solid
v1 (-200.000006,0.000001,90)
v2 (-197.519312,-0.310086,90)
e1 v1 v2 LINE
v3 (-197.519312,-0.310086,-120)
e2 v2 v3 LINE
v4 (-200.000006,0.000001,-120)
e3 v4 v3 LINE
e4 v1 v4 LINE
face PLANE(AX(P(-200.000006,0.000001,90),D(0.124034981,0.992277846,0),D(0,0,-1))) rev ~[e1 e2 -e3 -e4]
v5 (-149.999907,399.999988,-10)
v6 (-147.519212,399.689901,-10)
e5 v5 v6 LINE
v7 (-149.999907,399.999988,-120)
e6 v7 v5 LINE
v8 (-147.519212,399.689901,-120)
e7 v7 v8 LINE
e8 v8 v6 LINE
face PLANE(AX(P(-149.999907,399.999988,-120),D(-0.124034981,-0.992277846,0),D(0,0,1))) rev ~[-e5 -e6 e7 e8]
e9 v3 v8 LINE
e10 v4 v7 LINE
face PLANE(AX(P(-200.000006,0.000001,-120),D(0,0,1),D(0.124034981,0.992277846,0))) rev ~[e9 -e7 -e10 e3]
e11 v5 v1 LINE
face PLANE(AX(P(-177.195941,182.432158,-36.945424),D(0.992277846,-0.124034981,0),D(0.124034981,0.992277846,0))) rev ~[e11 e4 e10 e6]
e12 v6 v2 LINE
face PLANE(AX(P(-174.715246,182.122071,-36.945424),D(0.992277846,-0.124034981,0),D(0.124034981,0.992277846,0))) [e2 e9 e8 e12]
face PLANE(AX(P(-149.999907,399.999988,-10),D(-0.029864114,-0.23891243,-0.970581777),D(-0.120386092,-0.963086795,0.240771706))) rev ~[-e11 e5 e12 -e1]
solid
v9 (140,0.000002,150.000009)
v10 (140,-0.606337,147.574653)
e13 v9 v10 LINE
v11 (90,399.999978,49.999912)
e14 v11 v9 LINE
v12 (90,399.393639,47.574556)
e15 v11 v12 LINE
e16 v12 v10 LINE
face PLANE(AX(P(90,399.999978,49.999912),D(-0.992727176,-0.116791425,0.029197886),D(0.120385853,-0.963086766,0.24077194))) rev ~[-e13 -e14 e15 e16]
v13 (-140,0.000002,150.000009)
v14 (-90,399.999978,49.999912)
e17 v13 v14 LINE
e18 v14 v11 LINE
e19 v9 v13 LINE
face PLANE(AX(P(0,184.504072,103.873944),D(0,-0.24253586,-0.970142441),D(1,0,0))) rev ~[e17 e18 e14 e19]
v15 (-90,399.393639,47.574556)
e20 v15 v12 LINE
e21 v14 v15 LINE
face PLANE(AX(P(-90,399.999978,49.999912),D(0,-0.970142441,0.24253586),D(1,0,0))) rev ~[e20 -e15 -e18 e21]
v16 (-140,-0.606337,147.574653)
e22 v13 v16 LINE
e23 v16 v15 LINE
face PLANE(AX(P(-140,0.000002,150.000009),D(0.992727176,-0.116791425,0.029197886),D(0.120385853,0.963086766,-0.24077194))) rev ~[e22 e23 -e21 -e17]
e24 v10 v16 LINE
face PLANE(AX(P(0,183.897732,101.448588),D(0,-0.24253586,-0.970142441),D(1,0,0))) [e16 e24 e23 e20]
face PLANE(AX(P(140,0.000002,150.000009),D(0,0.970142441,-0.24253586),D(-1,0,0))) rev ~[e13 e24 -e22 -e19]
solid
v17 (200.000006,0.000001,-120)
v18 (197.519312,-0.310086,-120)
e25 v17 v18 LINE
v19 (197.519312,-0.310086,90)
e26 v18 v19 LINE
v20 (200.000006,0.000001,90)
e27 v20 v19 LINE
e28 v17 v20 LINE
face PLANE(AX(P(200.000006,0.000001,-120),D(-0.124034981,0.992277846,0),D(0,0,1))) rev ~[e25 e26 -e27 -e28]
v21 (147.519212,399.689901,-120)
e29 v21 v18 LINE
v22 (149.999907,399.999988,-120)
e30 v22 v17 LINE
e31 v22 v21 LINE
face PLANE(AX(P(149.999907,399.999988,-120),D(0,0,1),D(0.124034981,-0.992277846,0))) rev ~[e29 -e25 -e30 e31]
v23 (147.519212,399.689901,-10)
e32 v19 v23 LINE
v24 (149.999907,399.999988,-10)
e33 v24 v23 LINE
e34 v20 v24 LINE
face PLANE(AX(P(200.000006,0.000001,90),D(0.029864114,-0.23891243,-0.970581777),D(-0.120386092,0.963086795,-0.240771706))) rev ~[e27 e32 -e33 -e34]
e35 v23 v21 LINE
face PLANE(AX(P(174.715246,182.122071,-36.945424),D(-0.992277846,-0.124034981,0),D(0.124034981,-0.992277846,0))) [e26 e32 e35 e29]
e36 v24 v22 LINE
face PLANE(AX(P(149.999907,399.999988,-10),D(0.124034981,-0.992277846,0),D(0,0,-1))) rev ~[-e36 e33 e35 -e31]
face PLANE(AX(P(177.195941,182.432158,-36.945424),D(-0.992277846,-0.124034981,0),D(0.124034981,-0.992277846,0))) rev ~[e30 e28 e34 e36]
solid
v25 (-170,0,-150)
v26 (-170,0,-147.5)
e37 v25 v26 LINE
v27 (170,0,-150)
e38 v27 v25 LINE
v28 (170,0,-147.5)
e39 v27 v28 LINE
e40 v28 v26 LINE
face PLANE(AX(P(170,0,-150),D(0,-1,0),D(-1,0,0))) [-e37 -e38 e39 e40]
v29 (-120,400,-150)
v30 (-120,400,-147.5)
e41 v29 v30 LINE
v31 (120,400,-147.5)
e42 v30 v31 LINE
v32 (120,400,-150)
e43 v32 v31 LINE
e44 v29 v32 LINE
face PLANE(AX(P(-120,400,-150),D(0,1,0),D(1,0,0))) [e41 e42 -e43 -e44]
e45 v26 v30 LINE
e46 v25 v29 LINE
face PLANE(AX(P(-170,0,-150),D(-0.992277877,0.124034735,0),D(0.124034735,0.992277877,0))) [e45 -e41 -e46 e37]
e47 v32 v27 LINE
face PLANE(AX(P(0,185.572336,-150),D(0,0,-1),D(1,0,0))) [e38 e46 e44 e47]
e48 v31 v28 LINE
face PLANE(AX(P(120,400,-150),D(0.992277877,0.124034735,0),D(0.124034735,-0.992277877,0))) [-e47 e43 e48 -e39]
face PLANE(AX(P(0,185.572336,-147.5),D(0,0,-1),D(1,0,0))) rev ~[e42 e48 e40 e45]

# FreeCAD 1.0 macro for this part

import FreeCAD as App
import Part
import Sketcher


def add_polygon(sketch, points):
    """Adds a closed chain of lines whose ends are joined by coincident constraints."""
    first, n = sketch.GeometryCount, len(points)
    for a, b in zip(points, points[1:] + points[:1]):
        sketch.addGeometry(Part.LineSegment(App.Vector(*a, 0), App.Vector(*b, 0)), False)
    for i in range(n):
        sketch.addConstraint(Sketcher.Constraint("Coincident", first + i, 2, first + (i + 1) % n, 1))

doc = App.newDocument("Part")
body = doc.addObject("PartDesign::Body", "Body")

# Sketch on an angled plane
sketch1 = body.newObject("Sketcher::SketchObject", "Sketch")
sketch1.Placement = App.Placement(App.Vector(0, 35.294118, 141.176471), App.Rotation(App.Vector(1, 0, 0), App.Vector(0, -0.970142441, 0.24253586), App.Vector(0, -0.24253586, -0.970142441), "ZXY"))
add_polygon(sketch1, [(90, -375.930219), (140, 36.380344), (-140, 36.380344), (-90, -375.930219)])  # lines 0-3
sketch1.addConstraint(Sketcher.Constraint("Horizontal", 1))
sketch1.addConstraint(Sketcher.Constraint("Horizontal", 3))
sketch1.addConstraint(Sketcher.Constraint("Equal", 0, 2))
sketch1.addConstraint(Sketcher.Constraint("DistanceX", 1, 2, 1, 1, 280.0))
sketch1.addConstraint(Sketcher.Constraint("DistanceX", 3, 1, 3, 2, 180.0))
sketch1.addConstraint(Sketcher.Constraint("DistanceX", -1, 1, 0, 2, 140.0))
sketch1.addConstraint(Sketcher.Constraint("DistanceY", 2, 2, -1, 1, 375.930219))
sketch1.addConstraint(Sketcher.Constraint("Distance", 0, 415.331193))
pad1 = body.newObject("PartDesign::Pad", "Pad")
pad1.Profile = sketch1
pad1.Length = 2.5
body2 = doc.addObject("PartDesign::Body", "Body001")

# Sketch on an angled plane
sketch2 = body2.newObject("Sketcher::SketchObject", "Sketch001")
sketch2.Placement = App.Placement(App.Vector(196.923077, 24.615385, 0), App.Rotation(App.Vector(0.124034981, -0.992277846, 0), App.Vector(0, 0, 1), App.Vector(-0.992277846, -0.124034981, 0), "ZXY"))
add_polygon(sketch2, [(24.806947, -120), (24.806947, 90), (-378.30594, -10), (-378.30594, -120)])  # lines 0-3
sketch2.addConstraint(Sketcher.Constraint("Vertical", 0))
sketch2.addConstraint(Sketcher.Constraint("Vertical", 2))
sketch2.addConstraint(Sketcher.Constraint("Horizontal", 3))
sketch2.addConstraint(Sketcher.Constraint("DistanceY", 0, 1, 0, 2, 210.0))
sketch2.addConstraint(Sketcher.Constraint("DistanceY", 2, 2, 2, 1, 110.0))
sketch2.addConstraint(Sketcher.Constraint("DistanceY", -1, 1, 0, 2, 90.0))
sketch2.addConstraint(Sketcher.Constraint("DistanceX", 3, 1, 3, 2, 403.112887))
sketch2.addConstraint(Sketcher.Constraint("DistanceX", 1, 2, -1, 1, 378.30594))
pad2 = body2.newObject("PartDesign::Pad", "Pad001")
pad2.Profile = sketch2
pad2.Length = 2.5
body3 = doc.addObject("PartDesign::Body", "Body002")

# Sketch on an angled plane
sketch3 = body3.newObject("Sketcher::SketchObject", "Sketch002")
sketch3.Placement = App.Placement(App.Vector(-196.923077, 24.615385, 0), App.Rotation(App.Vector(0.124034981, 0.992277846, 0), App.Vector(0, 0, 1), App.Vector(0.992277846, -0.124034981, 0), "ZXY"))
add_polygon(sketch3, [(378.30594, -120), (378.30594, -10), (-24.806947, 90), (-24.806947, -120)])  # lines 0-3
sketch3.addConstraint(Sketcher.Constraint("Vertical", 0))
sketch3.addConstraint(Sketcher.Constraint("Vertical", 2))
sketch3.addConstraint(Sketcher.Constraint("Horizontal", 3))
sketch3.addConstraint(Sketcher.Constraint("DistanceY", 0, 1, 0, 2, 110.0))
sketch3.addConstraint(Sketcher.Constraint("DistanceY", 2, 2, 2, 1, 210.0))
sketch3.addConstraint(Sketcher.Constraint("DistanceY", 0, 2, -1, 1, 10.0))
sketch3.addConstraint(Sketcher.Constraint("DistanceX", 3, 1, 3, 2, 403.112887))
sketch3.addConstraint(Sketcher.Constraint("DistanceX", -1, 1, 0, 2, 378.30594))
pad3 = body3.newObject("PartDesign::Pad", "Pad002")
pad3.Profile = sketch3
pad3.Length = 2.5
body4 = doc.addObject("PartDesign::Body", "Body003")

# Sketch on XY plane
sketch4 = body4.newObject("Sketcher::SketchObject", "Sketch003")
sketch4.AttachmentSupport = (doc.getObject("XY_Plane003"), [""])
sketch4.MapMode = "FlatFace"
sketch4.AttachmentOffset = App.Placement(App.Vector(0, 0, -150), App.Rotation())
add_polygon(sketch4, [(-170, 0), (-120, 400), (120, 400), (170, 0)])  # lines 0-3
sketch4.addConstraint(Sketcher.Constraint("Horizontal", 1))
sketch4.addConstraint(Sketcher.Constraint("Horizontal", 3))
sketch4.addConstraint(Sketcher.Constraint("Symmetric", 2, 2, 3, 2, -1, 1))
sketch4.addConstraint(Sketcher.Constraint("Equal", 0, 2))
sketch4.addConstraint(Sketcher.Constraint("DistanceX", 1, 1, 1, 2, 240.0))
sketch4.addConstraint(Sketcher.Constraint("DistanceX", 3, 2, 3, 1, 340.0))
sketch4.addConstraint(Sketcher.Constraint("DistanceY", -1, 1, 0, 2, 400.0))
pad4 = body4.newObject("PartDesign::Pad", "Pad003")
pad4.Profile = sketch4
pad4.Length = 2.5

doc.recompute()
